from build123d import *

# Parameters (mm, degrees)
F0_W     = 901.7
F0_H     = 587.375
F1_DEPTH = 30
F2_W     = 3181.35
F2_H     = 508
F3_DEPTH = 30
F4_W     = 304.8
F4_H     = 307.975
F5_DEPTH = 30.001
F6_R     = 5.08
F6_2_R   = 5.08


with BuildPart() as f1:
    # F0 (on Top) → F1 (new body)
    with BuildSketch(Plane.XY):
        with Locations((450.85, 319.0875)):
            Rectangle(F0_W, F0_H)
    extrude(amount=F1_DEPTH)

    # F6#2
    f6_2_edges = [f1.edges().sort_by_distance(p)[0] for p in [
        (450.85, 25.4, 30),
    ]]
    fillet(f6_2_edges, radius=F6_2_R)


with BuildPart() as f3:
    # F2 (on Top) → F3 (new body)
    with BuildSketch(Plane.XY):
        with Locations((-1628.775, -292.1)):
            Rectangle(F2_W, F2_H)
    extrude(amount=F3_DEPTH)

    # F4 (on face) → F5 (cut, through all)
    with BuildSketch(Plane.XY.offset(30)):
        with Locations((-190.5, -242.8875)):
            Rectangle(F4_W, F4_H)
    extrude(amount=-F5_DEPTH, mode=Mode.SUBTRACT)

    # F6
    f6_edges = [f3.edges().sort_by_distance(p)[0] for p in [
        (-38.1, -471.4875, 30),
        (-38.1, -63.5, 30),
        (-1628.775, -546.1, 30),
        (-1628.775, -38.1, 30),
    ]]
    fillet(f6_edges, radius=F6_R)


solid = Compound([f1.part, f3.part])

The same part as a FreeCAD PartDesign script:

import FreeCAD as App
import Part
import Sketcher

V = App.Vector
Q = App.Units.Quantity


def edges_at(feature, points):
    """Names of the edges that pass closest to the given points."""
    edges = feature.Shape.Edges
    near = lambda p: min(range(len(edges)), key=lambda i: edges[i].distToShape(Part.Vertex(*p))[0])
    return sorted({f"Edge{near(p) + 1}" for p in points})

doc = App.newDocument("Part")
body = doc.addObject("PartDesign::Body", "Body")

sketch1 = doc.addObject("Sketcher::SketchObject", "Sketch")
body.addObject(sketch1)
sketch1.AttachmentSupport = (doc.XY_Plane, [""])
sketch1.MapMode = "FlatFace"
sketch1.addGeometry([
    Part.LineSegment(V(0, 613, 0), V(0, 25, 0)),
    Part.LineSegment(V(0, 25, 0), V(902, 25, 0)),
    Part.LineSegment(V(902, 25, 0), V(902, 613, 0)),
    Part.LineSegment(V(902, 613, 0), V(0, 613, 0)),
], False)
sketch1.addConstraint([
    Sketcher.Constraint("Coincident", 0, 2, 1, 1),
    Sketcher.Constraint("Coincident", 1, 2, 2, 1),
    Sketcher.Constraint("Coincident", 2, 2, 3, 1),
    Sketcher.Constraint("Coincident", 3, 2, 0, 1),
    Sketcher.Constraint("Vertical", 0),
    Sketcher.Constraint("Horizontal", 1),
    Sketcher.Constraint("Vertical", 2),
    Sketcher.Constraint("Horizontal", 3),
    Sketcher.Constraint("PointOnObject", 0, 2, -2),
    Sketcher.Constraint("DistanceX", 1, 1, 1, 2, Q("35.5 in")),
    Sketcher.Constraint("DistanceY", -1, 1, 0, 2, Q("1 in")),
    Sketcher.Constraint("DistanceY", 0, 2, 0, 1, Q("23.125 in")),
])
pad1 = doc.addObject("PartDesign::Pad", "Pad")
body.addObject(pad1)
pad1.Profile = sketch1
pad1.Length = 30
doc.recompute()

fillet = doc.addObject("PartDesign::Fillet", "Fillet")
body.addObject(fillet)
fillet.Base = (pad1, edges_at(pad1, [(450.85, 25.4, 30)]))
fillet.Radius = Q("0.2 in")
body2 = doc.addObject("PartDesign::Body", "Body001")

sketch2 = doc.addObject("Sketcher::SketchObject", "Sketch001")
body2.addObject(sketch2)
sketch2.AttachmentSupport = (doc.getObject("XY_Plane001"), [""])
sketch2.MapMode = "FlatFace"
sketch2.addGeometry([
    Part.LineSegment(V(-3219, -38, 0), V(-3219, -546, 0)),
    Part.LineSegment(V(-3219, -546, 0), V(-38, -546, 0)),
    Part.LineSegment(V(-38, -546, 0), V(-38, -38, 0)),
    Part.LineSegment(V(-38, -38, 0), V(-3219, -38, 0)),
], False)
sketch2.addConstraint([
    Sketcher.Constraint("Coincident", 0, 2, 1, 1),
    Sketcher.Constraint("Coincident", 1, 2, 2, 1),
    Sketcher.Constraint("Coincident", 2, 2, 3, 1),
    Sketcher.Constraint("Coincident", 3, 2, 0, 1),
    Sketcher.Constraint("Vertical", 0),
    Sketcher.Constraint("Horizontal", 1),
    Sketcher.Constraint("Vertical", 2),
    Sketcher.Constraint("Horizontal", 3),
    Sketcher.Constraint("DistanceY", 0, 2, 0, 1, Q("20 in")),
    Sketcher.Constraint("DistanceX", 1, 1, 1, 2, Q("125.25 in")),
    Sketcher.Constraint("DistanceY", 0, 2, -1, 1, Q("21.5 in")),
    Sketcher.Constraint("DistanceX", 1, 2, -1, 1, Q("1.5 in")),
])
pad2 = doc.addObject("PartDesign::Pad", "Pad001")
body2.addObject(pad2)
pad2.Profile = sketch2
pad2.Length = 30

sketch3 = doc.addObject("Sketcher::SketchObject", "Sketch002")
body2.addObject(sketch3)
sketch3.AttachmentSupport = (doc.getObject("XY_Plane001"), [""])
sketch3.MapMode = "FlatFace"
sketch3.AttachmentOffset = App.Placement(V(0, 0, 30), App.Rotation())
sketch3.addGeometry([
    Part.LineSegment(V(-343, -89, 0), V(-343, -397, 0)),
    Part.LineSegment(V(-343, -397, 0), V(-38, -397, 0)),
    Part.LineSegment(V(-38, -397, 0), V(-38, -89, 0)),
    Part.LineSegment(V(-38, -89, 0), V(-343, -89, 0)),
], False)
sketch3.addConstraint([
    Sketcher.Constraint("Coincident", 0, 2, 1, 1),
    Sketcher.Constraint("Coincident", 1, 2, 2, 1),
    Sketcher.Constraint("Coincident", 2, 2, 3, 1),
    Sketcher.Constraint("Coincident", 3, 2, 0, 1),
    Sketcher.Constraint("Vertical", 0),
    Sketcher.Constraint("Horizontal", 1),
    Sketcher.Constraint("Vertical", 2),
    Sketcher.Constraint("Horizontal", 3),
    Sketcher.Constraint("DistanceX", 1, 1, 1, 2, Q("12 in")),
    Sketcher.Constraint("DistanceX", 0, 2, -1, 1, Q("13.5 in")),
    Sketcher.Constraint("DistanceY", 2, 2, -1, 1, Q("3.5 in")),
    Sketcher.Constraint("DistanceY", 0, 2, 0, 1, Q("12.125 in")),
])
pocket1 = doc.addObject("PartDesign::Pocket", "Pocket")
body2.addObject(pocket1)
pocket1.Profile = sketch3
pocket1.Type = "ThroughAll"
doc.recompute()

fillet2 = doc.addObject("PartDesign::Fillet", "Fillet001")
body2.addObject(fillet2)
fillet2.Base = (pocket1, edges_at(pocket1, [
    (-38.1, -471.488, 30),
    (-38.1, -63.5, 30),
    (-1628.775, -546.1, 30),
    (-1628.775, -38.1, 30),
]))
fillet2.Radius = Q("0.2 in")

doc.recompute()
